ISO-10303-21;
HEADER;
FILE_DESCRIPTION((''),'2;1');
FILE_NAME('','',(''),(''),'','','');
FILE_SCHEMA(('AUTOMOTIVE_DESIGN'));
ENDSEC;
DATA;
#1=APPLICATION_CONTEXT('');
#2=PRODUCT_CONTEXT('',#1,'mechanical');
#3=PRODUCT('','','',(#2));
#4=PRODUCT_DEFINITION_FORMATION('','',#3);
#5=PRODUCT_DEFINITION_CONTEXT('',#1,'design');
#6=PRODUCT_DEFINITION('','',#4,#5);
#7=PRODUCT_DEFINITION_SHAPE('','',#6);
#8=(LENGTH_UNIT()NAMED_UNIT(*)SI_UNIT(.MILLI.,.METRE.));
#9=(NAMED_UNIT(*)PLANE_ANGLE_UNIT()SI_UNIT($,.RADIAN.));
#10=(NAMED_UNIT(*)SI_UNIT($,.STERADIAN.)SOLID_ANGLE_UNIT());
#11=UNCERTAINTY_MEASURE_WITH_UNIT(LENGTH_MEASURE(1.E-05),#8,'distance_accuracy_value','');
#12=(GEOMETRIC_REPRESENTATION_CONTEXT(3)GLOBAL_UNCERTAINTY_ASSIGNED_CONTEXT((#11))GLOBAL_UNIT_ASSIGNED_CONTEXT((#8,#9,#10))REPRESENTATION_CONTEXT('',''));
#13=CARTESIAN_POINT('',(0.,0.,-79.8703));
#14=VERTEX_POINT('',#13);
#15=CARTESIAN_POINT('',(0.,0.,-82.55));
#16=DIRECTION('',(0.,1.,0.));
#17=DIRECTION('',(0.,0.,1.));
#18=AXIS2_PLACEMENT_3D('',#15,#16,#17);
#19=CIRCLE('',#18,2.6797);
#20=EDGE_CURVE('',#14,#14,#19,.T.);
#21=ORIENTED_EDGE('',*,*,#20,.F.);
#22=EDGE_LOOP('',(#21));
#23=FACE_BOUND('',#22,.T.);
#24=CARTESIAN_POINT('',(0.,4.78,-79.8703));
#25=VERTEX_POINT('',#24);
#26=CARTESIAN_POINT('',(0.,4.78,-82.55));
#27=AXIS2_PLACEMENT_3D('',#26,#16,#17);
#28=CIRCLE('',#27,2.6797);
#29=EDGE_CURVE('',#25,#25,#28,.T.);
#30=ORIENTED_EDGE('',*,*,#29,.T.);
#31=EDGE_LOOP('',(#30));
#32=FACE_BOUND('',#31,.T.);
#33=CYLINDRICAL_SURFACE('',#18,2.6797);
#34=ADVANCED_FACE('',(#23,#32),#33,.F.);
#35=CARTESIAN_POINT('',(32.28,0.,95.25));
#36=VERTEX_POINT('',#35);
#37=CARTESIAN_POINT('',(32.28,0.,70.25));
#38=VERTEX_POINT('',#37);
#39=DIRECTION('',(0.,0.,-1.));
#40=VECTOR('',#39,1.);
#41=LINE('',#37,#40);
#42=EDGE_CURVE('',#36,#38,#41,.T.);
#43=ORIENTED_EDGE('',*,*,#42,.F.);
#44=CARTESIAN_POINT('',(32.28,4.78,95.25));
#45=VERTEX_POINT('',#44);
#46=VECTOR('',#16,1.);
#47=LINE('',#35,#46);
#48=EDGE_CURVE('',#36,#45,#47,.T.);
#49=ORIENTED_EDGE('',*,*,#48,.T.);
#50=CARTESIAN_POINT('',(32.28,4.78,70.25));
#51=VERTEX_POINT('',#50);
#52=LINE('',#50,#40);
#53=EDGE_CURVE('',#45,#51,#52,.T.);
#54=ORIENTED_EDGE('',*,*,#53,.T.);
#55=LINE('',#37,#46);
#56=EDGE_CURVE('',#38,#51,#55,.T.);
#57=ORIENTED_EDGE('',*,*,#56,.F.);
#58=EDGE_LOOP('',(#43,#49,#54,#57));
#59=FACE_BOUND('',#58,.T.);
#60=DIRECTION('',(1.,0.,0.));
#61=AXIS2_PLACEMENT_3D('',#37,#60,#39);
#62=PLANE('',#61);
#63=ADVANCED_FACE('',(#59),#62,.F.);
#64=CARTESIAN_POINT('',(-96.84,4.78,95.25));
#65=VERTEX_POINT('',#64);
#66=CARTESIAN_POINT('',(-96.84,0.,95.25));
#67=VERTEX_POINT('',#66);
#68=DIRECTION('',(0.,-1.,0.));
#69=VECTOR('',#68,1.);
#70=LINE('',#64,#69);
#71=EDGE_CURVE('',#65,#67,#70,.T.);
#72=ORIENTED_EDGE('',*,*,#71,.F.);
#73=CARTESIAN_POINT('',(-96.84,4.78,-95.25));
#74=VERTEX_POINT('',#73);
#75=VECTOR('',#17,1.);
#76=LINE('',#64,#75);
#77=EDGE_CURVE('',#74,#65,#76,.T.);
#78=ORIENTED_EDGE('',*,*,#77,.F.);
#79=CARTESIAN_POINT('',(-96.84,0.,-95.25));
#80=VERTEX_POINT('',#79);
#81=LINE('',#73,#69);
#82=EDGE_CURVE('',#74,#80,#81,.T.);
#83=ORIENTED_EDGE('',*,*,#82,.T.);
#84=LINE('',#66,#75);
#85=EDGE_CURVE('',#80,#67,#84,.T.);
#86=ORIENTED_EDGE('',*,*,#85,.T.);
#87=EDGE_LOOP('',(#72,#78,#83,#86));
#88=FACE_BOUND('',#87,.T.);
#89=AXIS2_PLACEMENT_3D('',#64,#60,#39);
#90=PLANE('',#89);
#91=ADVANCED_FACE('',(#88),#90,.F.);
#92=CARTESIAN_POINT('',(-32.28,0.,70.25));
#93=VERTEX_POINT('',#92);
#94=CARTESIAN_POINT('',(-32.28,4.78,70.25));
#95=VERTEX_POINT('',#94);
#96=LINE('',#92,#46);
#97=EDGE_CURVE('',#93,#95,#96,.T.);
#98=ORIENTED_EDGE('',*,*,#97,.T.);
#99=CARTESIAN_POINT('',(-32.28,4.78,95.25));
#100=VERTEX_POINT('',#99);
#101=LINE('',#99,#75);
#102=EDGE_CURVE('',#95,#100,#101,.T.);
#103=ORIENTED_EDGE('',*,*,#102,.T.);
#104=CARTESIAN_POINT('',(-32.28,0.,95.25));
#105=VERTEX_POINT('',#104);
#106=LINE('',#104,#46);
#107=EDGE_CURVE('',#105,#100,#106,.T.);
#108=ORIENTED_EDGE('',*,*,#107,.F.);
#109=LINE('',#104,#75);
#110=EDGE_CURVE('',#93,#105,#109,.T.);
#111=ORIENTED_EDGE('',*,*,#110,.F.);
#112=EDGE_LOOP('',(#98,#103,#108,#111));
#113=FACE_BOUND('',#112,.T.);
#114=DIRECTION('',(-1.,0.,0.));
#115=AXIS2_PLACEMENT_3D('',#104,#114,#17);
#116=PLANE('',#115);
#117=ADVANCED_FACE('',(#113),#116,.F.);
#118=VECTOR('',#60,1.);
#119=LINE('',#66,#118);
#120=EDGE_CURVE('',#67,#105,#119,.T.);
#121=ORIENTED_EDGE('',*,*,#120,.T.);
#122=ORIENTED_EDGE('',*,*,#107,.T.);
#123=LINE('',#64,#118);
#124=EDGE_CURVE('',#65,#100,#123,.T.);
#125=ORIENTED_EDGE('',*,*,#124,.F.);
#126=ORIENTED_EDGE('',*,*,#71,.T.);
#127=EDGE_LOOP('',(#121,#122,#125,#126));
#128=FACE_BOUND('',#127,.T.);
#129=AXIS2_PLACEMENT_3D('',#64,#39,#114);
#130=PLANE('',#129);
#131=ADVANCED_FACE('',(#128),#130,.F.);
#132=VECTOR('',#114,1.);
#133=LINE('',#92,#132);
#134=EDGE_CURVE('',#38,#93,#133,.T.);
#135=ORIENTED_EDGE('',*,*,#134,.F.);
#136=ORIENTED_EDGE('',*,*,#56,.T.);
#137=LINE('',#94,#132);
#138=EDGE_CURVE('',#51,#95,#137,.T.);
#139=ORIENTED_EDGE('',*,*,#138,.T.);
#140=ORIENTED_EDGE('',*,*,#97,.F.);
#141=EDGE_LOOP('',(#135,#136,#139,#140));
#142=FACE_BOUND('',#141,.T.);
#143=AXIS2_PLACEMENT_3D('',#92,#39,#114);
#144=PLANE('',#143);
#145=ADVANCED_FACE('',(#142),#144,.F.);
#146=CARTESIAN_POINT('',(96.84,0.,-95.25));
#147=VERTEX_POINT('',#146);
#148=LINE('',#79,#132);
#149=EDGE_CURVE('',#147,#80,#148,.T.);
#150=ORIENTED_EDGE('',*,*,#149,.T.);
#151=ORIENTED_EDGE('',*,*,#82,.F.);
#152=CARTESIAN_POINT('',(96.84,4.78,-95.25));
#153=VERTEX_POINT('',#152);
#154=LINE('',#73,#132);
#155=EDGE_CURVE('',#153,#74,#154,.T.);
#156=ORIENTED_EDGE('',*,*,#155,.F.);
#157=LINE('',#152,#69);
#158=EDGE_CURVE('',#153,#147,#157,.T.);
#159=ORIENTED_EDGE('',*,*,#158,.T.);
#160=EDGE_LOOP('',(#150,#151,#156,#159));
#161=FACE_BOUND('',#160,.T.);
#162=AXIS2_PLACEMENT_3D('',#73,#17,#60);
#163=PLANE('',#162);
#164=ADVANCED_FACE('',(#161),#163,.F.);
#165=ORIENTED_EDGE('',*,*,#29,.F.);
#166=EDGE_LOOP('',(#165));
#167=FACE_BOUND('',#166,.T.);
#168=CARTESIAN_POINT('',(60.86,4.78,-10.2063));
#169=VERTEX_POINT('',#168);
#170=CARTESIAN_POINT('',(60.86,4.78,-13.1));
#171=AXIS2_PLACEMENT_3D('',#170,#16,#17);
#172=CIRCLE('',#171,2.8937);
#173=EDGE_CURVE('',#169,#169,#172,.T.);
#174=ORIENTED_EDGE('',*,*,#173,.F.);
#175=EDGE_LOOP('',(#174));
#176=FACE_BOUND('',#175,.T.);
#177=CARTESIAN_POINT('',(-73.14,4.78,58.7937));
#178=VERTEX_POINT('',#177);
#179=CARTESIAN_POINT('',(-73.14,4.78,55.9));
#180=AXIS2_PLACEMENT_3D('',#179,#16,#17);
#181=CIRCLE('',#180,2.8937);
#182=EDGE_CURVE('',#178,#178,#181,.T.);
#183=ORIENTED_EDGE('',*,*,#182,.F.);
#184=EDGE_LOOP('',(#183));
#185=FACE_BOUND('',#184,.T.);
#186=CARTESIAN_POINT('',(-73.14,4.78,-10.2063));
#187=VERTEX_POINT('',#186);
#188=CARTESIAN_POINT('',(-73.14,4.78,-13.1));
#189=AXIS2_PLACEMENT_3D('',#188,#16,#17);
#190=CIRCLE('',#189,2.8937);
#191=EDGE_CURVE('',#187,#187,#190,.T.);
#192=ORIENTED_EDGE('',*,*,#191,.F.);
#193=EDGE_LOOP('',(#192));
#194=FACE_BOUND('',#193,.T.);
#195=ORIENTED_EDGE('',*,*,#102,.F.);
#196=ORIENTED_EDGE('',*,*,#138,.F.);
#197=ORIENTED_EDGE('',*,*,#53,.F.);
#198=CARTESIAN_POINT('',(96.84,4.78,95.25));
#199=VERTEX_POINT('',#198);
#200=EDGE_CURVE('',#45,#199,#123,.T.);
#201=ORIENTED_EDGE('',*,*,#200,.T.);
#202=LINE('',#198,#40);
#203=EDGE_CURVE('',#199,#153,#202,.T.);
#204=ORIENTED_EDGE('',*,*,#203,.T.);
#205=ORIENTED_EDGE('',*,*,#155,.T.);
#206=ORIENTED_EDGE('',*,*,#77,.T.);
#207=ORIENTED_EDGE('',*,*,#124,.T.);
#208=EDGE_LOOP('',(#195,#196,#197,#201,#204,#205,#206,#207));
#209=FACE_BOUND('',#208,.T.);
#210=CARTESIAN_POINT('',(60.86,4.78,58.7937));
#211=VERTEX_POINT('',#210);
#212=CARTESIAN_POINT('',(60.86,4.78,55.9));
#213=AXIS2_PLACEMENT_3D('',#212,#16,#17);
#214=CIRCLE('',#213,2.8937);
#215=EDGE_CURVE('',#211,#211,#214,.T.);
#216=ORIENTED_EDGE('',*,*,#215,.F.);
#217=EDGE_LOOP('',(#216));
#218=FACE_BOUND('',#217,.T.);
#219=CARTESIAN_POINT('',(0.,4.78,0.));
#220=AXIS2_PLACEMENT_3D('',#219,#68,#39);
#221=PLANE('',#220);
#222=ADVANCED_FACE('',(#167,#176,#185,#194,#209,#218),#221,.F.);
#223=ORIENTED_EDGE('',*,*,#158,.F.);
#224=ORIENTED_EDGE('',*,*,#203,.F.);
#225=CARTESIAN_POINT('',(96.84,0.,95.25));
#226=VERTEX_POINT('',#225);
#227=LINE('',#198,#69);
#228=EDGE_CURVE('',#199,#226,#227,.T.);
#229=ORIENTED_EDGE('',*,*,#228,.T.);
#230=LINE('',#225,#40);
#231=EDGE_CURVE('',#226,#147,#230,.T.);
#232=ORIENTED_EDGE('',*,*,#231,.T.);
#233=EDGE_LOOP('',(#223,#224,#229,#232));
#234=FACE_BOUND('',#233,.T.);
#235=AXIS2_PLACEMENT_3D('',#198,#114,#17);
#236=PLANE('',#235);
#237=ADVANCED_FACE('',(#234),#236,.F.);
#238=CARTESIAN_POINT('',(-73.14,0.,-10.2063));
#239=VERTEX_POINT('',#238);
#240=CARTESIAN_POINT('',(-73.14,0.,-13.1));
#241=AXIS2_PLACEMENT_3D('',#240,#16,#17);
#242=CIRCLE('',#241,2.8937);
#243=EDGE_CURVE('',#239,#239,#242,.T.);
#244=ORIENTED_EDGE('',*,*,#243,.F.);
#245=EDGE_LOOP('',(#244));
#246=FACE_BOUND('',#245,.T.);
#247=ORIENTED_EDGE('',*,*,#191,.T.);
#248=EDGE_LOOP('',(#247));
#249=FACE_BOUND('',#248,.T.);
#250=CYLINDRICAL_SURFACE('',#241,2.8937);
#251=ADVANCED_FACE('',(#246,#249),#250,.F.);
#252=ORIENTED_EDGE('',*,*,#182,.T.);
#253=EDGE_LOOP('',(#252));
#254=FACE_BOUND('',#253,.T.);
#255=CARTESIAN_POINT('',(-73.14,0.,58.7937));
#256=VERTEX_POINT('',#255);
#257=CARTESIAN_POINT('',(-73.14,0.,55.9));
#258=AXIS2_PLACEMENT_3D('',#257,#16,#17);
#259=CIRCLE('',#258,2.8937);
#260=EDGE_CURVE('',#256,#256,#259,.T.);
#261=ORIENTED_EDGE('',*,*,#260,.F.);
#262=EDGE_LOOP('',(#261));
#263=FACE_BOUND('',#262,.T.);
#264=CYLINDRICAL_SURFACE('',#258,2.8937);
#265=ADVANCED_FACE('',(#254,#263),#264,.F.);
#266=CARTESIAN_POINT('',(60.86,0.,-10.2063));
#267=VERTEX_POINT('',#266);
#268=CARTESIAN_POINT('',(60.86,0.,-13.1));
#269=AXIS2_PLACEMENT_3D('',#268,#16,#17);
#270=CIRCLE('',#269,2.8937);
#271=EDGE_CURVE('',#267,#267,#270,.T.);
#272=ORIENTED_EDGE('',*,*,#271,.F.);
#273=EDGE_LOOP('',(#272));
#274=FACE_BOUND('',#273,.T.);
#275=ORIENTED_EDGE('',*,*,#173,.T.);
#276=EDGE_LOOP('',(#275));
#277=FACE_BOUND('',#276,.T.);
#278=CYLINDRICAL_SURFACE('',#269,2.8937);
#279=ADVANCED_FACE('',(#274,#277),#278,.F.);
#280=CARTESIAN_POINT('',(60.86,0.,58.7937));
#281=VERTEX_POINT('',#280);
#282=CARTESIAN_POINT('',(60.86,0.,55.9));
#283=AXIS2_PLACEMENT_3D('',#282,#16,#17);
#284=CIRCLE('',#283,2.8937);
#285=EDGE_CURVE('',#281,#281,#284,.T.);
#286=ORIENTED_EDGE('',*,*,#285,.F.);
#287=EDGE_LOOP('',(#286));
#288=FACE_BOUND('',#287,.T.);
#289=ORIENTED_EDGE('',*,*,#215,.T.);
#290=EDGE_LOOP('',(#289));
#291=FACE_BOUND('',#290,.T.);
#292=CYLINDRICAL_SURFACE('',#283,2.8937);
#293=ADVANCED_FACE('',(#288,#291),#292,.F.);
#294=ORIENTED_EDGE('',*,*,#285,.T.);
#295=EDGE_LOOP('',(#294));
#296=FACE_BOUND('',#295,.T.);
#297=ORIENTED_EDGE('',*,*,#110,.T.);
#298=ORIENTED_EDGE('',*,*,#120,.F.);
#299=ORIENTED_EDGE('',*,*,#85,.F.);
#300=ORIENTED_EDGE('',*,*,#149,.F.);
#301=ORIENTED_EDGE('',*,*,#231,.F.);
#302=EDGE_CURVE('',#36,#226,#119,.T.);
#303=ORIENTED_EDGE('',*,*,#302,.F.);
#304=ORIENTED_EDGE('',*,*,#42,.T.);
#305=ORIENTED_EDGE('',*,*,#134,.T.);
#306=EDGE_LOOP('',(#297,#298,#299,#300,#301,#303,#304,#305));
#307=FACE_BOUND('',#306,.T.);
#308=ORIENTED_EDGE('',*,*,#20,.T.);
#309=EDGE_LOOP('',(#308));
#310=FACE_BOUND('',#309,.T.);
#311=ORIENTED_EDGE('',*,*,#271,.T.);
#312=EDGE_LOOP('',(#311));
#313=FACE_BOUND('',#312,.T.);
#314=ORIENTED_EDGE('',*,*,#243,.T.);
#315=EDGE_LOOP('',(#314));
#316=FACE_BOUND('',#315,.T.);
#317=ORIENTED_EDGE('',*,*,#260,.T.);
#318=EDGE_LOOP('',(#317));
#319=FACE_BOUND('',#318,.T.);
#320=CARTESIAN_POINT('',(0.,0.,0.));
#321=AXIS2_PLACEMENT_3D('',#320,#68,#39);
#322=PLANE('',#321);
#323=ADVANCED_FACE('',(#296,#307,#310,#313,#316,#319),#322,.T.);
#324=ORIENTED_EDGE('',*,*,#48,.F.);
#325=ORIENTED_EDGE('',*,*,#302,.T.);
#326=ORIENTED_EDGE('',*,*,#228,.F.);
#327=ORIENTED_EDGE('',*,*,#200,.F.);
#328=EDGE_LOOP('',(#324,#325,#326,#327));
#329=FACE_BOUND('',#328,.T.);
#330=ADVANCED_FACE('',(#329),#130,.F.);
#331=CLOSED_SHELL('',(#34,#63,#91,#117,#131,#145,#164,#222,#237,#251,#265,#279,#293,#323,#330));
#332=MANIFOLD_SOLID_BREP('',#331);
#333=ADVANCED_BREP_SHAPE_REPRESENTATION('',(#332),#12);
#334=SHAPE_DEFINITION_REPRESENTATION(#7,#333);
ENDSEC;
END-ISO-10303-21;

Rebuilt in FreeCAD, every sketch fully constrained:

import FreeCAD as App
import Part
import Sketcher

V = App.Vector
Q = App.Units.Quantity

doc = App.newDocument("Part")
body = doc.addObject("PartDesign::Body", "Body")

sketch1 = body.newObject("Sketcher::SketchObject", "Sketch")
sketch1.AttachmentSupport = (doc.getObject("XZ_Plane"), [""])
sketch1.MapMode = "FlatFace"
sketch1.addGeometry(Part.LineSegment(V(-96.84, -95.25, 0), V(-96.84, 95.25, 0)), False)
sketch1.addGeometry(Part.LineSegment(V(-96.84, 95.25, 0), V(96.84, 95.25, 0)), False)
sketch1.addGeometry(Part.LineSegment(V(96.84, 95.25, 0), V(96.84, -95.25, 0)), False)
sketch1.addGeometry(Part.LineSegment(V(96.84, -95.25, 0), V(-96.84, -95.25, 0)), False)
sketch1.addConstraint(Sketcher.Constraint("Coincident", 0, 2, 1, 1))
sketch1.addConstraint(Sketcher.Constraint("Coincident", 1, 2, 2, 1))
sketch1.addConstraint(Sketcher.Constraint("Coincident", 2, 2, 3, 1))
sketch1.addConstraint(Sketcher.Constraint("Coincident", 3, 2, 0, 1))
sketch1.addConstraint(Sketcher.Constraint("Vertical", 0))
sketch1.addConstraint(Sketcher.Constraint("Horizontal", 1))
sketch1.addConstraint(Sketcher.Constraint("Vertical", 2))
sketch1.addConstraint(Sketcher.Constraint("Horizontal", 3))
sketch1.addConstraint(Sketcher.Constraint("Symmetric", 0, 2, 2, 2, -1, 1))
sketch1.addConstraint(Sketcher.Constraint("DistanceY", 0, 1, 0, 2, Q("7.5 in")))
sketch1.addConstraint(Sketcher.Constraint("DistanceX", 1, 1, 1, 2, Q("193.68 mm")))
pad1 = body.newObject("PartDesign::Pad", "Pad")
pad1.Profile = sketch1
pad1.Length = 4.78
pad1.Reversed = True

sketch2 = body.newObject("Sketcher::SketchObject", "Sketch001")
sketch2.AttachmentSupport = (doc.getObject("XZ_Plane"), [""])
sketch2.MapMode = "FlatFace"
sketch2.AttachmentOffset = App.Placement(V(0, 0, -4.78), App.Rotation())
sketch2.addGeometry(Part.Circle(V(0, -82.55, 0), V(0, 0, 1), 2.6797), False)
sketch2.addConstraint(Sketcher.Constraint("PointOnObject", 0, 3, -2))
sketch2.addConstraint(Sketcher.Constraint("Diameter", 0, Q("0.211 in")))
sketch2.addConstraint(Sketcher.Constraint("DistanceY", 0, 3, -1, 1, Q("3.25 in")))
pocket1 = body.newObject("PartDesign::Pocket", "Pocket")
pocket1.Profile = sketch2
pocket1.Type = "ThroughAll"
pocket1.Reversed = True

sketch3 = body.newObject("Sketcher::SketchObject", "Sketch002")
sketch3.AttachmentSupport = (doc.getObject("XZ_Plane"), [""])
sketch3.MapMode = "FlatFace"
sketch3.AttachmentOffset = App.Placement(V(0, 0, -4.78), App.Rotation())
sketch3.addGeometry(Part.LineSegment(V(-32.28, 95.25, 0), V(32.28, 95.25, 0)), False)
sketch3.addGeometry(Part.LineSegment(V(32.28, 95.25, 0), V(32.28, 70.25, 0)), False)
sketch3.addGeometry(Part.LineSegment(V(32.28, 70.25, 0), V(-32.28, 70.25, 0)), False)
sketch3.addGeometry(Part.LineSegment(V(-32.28, 70.25, 0), V(-32.28, 95.25, 0)), False)
sketch3.addConstraint(Sketcher.Constraint("Coincident", 0, 2, 1, 1))
sketch3.addConstraint(Sketcher.Constraint("Coincident", 1, 2, 2, 1))
sketch3.addConstraint(Sketcher.Constraint("Coincident", 2, 2, 3, 1))
sketch3.addConstraint(Sketcher.Constraint("Coincident", 3, 2, 0, 1))
sketch3.addConstraint(Sketcher.Constraint("Horizontal", 0))
sketch3.addConstraint(Sketcher.Constraint("Vertical", 1))
sketch3.addConstraint(Sketcher.Constraint("Horizontal", 2))
sketch3.addConstraint(Sketcher.Constraint("Vertical", 3))
sketch3.addConstraint(Sketcher.Constraint("DistanceY", -1, 1, 0, 2, Q("3.75 in")))
sketch3.addConstraint(Sketcher.Constraint("DistanceX", 0, 1, 0, 2, Q("64.56 mm")))
sketch3.addConstraint(Sketcher.Constraint("DistanceY", 1, 2, 1, 1, Q("25 mm")))
sketch3.addConstraint(Sketcher.Constraint("DistanceX", -1, 1, 0, 2, Q("32.28 mm")))
pocket2 = body.newObject("PartDesign::Pocket", "Pocket001")
pocket2.Profile = sketch3
pocket2.Type = "ThroughAll"
pocket2.Reversed = True

sketch4 = body.newObject("Sketcher::SketchObject", "Sketch003")
sketch4.AttachmentSupport = (doc.getObject("XZ_Plane"), [""])
sketch4.MapMode = "FlatFace"
sketch4.AttachmentOffset = App.Placement(V(0, 0, -4.78), App.Rotation())
sketch4.addGeometry(Part.Circle(V(-73.14, 55.9, 0), V(0, 0, 1), 2.8937), False)
sketch4.addGeometry(Part.Circle(V(-73.14, -13.1, 0), V(0, 0, 1), 2.8937), False)
sketch4.addGeometry(Part.Circle(V(60.86, -13.1, 0), V(0, 0, 1), 2.8937), False)
sketch4.addGeometry(Part.Circle(V(60.86, 55.9, 0), V(0, 0, 1), 2.8937), False)
sketch4.addConstraint(Sketcher.Constraint("Equal", 0, 1))
sketch4.addConstraint(Sketcher.Constraint("Equal", 1, 2))
sketch4.addConstraint(Sketcher.Constraint("Equal", 2, 3))
sketch4.addConstraint(Sketcher.Constraint("Horizontal", 1, 3, 2, 3))
sketch4.addConstraint(Sketcher.Constraint("Horizontal", 0, 3, 3, 3))
sketch4.addConstraint(Sketcher.Constraint("Vertical", 0, 3, 1, 3))
sketch4.addConstraint(Sketcher.Constraint("Vertical", 2, 3, 3, 3))
sketch4.addConstraint(Sketcher.Constraint("Diameter", 0, Q("5.7874 mm")))
sketch4.addConstraint(Sketcher.Constraint("DistanceX", 0, 3, -1, 1, Q("73.14 mm")))
sketch4.addConstraint(Sketcher.Constraint("DistanceY", -1, 1, 0, 3, Q("55.9 mm")))
sketch4.addConstraint(Sketcher.Constraint("DistanceY", 1, 3, -1, 1, Q("13.1 mm")))
sketch4.addConstraint(Sketcher.Constraint("DistanceX", -1, 1, 2, 3, Q("60.86 mm")))
pocket3 = body.newObject("PartDesign::Pocket", "Pocket002")
pocket3.Profile = sketch4
pocket3.Type = "ThroughAll"
pocket3.Reversed = True

doc.recompute()
